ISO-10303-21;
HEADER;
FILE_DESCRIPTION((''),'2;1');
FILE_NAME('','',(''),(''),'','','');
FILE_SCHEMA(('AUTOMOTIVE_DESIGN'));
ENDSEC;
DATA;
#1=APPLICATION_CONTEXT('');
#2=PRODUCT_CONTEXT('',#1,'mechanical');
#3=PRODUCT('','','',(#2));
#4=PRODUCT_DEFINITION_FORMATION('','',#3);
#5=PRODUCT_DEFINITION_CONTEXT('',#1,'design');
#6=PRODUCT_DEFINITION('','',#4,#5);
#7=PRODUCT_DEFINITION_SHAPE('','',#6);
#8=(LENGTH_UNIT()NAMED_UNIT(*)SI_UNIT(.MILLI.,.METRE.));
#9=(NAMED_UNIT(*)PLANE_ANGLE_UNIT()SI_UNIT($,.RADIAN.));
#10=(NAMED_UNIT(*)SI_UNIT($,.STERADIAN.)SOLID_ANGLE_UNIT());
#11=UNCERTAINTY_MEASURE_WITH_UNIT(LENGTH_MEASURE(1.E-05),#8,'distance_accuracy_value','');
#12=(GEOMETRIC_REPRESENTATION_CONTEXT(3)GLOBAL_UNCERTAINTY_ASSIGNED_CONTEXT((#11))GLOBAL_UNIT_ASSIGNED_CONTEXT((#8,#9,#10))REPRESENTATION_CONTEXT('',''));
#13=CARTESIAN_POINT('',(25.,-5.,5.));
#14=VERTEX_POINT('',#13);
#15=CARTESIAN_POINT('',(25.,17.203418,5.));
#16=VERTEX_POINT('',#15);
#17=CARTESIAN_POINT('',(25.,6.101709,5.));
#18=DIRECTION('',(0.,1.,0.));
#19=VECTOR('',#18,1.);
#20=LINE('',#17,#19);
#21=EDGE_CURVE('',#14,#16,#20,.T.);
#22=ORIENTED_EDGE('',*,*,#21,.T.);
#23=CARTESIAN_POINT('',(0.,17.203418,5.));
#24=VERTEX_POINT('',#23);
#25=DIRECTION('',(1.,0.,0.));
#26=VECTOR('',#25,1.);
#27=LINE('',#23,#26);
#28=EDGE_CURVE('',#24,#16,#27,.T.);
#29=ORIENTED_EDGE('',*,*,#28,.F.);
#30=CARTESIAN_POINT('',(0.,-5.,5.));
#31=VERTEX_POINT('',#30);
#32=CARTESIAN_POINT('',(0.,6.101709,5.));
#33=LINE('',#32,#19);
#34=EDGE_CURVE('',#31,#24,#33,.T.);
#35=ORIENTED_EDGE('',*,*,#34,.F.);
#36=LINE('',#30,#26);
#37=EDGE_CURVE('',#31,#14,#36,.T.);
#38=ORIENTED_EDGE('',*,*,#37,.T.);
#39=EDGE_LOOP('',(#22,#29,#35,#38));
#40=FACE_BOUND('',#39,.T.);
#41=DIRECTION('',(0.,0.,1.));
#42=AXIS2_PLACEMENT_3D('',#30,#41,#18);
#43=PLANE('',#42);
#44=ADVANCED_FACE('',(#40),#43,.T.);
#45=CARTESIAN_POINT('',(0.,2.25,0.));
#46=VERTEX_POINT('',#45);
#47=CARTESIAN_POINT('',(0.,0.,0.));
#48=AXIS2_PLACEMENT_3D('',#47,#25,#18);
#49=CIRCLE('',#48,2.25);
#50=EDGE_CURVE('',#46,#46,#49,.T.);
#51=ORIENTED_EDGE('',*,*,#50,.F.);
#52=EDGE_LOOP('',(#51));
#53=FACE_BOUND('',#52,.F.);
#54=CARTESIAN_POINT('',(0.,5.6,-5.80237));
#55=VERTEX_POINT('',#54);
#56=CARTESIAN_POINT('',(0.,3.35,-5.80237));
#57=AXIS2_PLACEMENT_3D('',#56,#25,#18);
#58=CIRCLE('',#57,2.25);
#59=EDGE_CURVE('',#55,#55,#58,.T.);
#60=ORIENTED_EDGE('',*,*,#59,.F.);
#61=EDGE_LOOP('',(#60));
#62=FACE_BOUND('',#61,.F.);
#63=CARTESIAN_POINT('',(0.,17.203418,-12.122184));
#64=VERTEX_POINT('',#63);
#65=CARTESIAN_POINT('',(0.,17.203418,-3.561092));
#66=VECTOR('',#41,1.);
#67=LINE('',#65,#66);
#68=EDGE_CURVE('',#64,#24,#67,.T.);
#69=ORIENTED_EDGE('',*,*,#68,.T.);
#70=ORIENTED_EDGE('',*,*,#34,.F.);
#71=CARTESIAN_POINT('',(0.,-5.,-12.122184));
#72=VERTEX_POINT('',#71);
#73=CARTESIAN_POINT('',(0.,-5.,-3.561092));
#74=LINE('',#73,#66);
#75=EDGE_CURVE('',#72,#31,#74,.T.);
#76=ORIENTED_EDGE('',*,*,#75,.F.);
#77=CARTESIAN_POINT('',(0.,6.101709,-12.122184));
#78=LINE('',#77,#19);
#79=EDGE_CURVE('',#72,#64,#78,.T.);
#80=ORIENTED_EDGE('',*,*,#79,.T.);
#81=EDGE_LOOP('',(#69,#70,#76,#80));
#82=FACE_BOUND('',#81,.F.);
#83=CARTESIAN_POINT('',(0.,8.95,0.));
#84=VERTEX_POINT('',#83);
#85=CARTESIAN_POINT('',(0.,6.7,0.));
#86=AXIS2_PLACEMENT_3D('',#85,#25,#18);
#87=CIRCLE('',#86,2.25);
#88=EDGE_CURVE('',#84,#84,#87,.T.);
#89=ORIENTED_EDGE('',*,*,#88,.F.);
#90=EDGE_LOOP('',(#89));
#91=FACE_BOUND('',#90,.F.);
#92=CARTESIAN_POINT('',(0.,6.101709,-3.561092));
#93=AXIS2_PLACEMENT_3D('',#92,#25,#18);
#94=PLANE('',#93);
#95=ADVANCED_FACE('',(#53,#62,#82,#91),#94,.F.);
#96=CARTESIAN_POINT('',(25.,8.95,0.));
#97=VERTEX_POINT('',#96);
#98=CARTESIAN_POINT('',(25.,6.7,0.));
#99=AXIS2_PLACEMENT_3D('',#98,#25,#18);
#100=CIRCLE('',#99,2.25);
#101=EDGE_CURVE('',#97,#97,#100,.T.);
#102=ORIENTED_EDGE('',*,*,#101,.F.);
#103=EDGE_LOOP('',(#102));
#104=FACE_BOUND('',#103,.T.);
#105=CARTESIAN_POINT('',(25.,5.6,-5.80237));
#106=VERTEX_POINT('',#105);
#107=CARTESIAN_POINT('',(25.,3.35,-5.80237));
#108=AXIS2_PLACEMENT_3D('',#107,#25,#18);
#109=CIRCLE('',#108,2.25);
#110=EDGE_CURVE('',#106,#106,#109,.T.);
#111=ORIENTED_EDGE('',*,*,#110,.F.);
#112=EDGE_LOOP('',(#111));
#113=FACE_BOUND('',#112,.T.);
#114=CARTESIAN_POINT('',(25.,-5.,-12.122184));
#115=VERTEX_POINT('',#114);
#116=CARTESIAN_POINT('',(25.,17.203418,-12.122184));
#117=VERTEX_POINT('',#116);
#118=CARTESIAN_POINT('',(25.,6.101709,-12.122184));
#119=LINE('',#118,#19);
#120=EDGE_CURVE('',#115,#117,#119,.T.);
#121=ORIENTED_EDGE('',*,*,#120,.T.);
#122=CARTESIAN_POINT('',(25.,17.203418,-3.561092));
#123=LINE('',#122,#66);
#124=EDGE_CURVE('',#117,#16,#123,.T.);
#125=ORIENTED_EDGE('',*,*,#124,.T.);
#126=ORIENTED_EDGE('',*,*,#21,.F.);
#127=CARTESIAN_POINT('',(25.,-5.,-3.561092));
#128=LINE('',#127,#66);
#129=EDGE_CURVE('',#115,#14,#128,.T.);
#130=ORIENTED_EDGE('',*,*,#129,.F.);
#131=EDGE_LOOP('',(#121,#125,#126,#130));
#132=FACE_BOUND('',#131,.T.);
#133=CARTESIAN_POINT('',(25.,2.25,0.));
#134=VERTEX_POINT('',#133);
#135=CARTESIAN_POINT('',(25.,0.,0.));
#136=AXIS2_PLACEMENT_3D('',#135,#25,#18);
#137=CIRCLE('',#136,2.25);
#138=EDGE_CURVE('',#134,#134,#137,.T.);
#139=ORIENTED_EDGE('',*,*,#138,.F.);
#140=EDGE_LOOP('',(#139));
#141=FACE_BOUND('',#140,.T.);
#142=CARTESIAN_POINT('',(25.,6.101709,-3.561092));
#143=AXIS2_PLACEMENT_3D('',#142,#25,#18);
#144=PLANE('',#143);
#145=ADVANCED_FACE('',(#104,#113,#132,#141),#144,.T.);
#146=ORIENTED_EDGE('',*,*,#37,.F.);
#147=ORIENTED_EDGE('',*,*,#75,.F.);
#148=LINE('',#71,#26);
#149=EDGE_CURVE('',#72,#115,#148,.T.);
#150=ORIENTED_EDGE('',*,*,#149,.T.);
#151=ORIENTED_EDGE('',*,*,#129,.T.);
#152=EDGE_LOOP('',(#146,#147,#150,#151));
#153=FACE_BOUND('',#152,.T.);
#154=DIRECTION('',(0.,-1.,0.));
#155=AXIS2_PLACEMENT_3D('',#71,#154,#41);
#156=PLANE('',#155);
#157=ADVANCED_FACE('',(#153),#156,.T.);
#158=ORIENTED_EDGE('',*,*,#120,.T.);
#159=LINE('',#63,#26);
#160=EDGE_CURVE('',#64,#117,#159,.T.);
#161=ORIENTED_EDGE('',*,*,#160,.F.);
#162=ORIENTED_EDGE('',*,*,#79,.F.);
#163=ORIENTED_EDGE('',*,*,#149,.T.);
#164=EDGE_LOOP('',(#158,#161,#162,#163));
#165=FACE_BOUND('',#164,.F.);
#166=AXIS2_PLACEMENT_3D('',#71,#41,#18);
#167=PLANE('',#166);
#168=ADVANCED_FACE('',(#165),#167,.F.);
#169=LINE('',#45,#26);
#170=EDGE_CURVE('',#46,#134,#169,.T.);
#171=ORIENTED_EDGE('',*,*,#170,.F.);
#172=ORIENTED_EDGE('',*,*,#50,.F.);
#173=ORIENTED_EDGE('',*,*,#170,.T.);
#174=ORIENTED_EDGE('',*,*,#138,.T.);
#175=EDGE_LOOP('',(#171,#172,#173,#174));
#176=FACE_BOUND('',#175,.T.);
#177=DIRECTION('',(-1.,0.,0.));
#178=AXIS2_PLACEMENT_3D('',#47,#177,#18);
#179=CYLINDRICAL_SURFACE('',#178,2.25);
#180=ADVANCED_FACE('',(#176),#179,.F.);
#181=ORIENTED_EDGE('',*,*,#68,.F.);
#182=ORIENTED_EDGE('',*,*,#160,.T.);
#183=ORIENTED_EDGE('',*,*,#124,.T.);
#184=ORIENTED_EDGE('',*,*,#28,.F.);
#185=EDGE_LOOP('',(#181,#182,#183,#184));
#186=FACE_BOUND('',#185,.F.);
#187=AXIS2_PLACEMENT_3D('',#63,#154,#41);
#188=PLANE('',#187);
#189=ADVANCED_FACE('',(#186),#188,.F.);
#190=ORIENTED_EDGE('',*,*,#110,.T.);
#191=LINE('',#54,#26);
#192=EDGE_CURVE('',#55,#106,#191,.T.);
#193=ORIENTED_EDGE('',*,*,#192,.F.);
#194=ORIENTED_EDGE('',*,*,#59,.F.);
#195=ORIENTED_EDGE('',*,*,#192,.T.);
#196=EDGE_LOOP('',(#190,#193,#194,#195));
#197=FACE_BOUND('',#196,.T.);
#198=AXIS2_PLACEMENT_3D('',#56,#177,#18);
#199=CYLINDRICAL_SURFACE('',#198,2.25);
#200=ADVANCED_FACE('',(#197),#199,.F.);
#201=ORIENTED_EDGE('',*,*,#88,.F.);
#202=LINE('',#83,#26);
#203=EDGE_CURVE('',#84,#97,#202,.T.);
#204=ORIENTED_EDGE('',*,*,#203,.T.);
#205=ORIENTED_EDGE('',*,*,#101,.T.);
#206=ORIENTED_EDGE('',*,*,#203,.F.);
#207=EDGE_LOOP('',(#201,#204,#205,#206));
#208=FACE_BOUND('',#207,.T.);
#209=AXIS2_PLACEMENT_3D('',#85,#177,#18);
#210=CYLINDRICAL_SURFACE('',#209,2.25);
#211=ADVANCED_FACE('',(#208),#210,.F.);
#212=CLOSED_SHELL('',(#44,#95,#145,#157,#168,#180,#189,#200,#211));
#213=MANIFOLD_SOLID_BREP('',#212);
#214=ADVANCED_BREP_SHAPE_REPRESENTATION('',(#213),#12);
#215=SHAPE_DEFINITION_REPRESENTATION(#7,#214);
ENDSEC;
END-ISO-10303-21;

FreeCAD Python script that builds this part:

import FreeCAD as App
import Part
import Sketcher

V = App.Vector
Q = App.Units.Quantity


def add_polygon(sketch, points):
    """Adds a closed chain of lines whose ends are joined by coincident constraints."""
    first, n = sketch.GeometryCount, len(points)
    for a, b in zip(points, points[1:] + points[:1]):
        sketch.addGeometry(Part.LineSegment(App.Vector(*a, 0), App.Vector(*b, 0)), False)
    for i in range(n):
        sketch.addConstraint(Sketcher.Constraint("Coincident", first + i, 2, first + (i + 1) % n, 1))

doc = App.newDocument("Part")
params = doc.addObject("Spreadsheet::Sheet", "Params")
for row, (alias, value) in enumerate([
    ("sketch1_diameter", "4.5 mm"),
    ("pad1_length", "25 mm"),
], start=1):
    params.set(f"A{row}", alias)
    params.set(f"B{row}", "=" + value)
    params.setAlias(f"B{row}", alias)

body = doc.addObject("PartDesign::Body", "Body")

sketch1 = doc.addObject("Sketcher::SketchObject", "Sketch")
body.addObject(sketch1)
sketch1.AttachmentSupport = (doc.YZ_Plane, [""])
sketch1.MapMode = "FlatFace"
add_polygon(sketch1, [(-5, 5), (-5, -12.122184), (17.203418, -12.122184), (17.203418, 5)])
sketch1.addGeometry(Part.Circle(V(3.35, -5.80237, 0), V(0, 0, 1), 2.25), False)
sketch1.addGeometry(Part.Circle(V(0, 0, 0), V(0, 0, 1), 2.25), False)
sketch1.addGeometry(Part.Circle(V(6.7, 0, 0), V(0, 0, 1), 2.25), False)
sketch1.addConstraint(Sketcher.Constraint("Vertical", 0))
sketch1.addConstraint(Sketcher.Constraint("Horizontal", 1))
sketch1.addConstraint(Sketcher.Constraint("Vertical", 2))
sketch1.addConstraint(Sketcher.Constraint("Horizontal", 3))
sketch1.addConstraint(Sketcher.Constraint("Coincident", 5, 3, -1, 1))
sketch1.addConstraint(Sketcher.Constraint("Equal", 4, 5))
sketch1.addConstraint(Sketcher.Constraint("Equal", 5, 6))
sketch1.addConstraint(Sketcher.Constraint("PointOnObject", 6, 3, -1))
sketch1.addConstraint(Sketcher.Constraint("Diameter", 4, Q("4.5 mm")))
sketch1.addConstraint(Sketcher.Constraint("DistanceX", 0, 2, -1, 1, Q("5 mm")))
sketch1.addConstraint(Sketcher.Constraint("DistanceY", -1, 1, 2, 2, Q("5 mm")))
sketch1.addConstraint(Sketcher.Constraint("DistanceX", -1, 1, 6, 3, Q("6.7 mm")))
sketch1.addConstraint(Sketcher.Constraint("DistanceX", -1, 1, 4, 3, Q("3.35 mm")))
sketch1.addConstraint(Sketcher.Constraint("DistanceX", 1, 1, 1, 2, Q("22.203418 mm")))
sketch1.addConstraint(Sketcher.Constraint("DistanceY", 0, 2, 0, 1, Q("17.122185 mm")))
sketch1.addConstraint(Sketcher.Constraint("DistanceY", 4, 3, -1, 1, Q("5.80237 mm")))
sketch1.setExpression("Constraints[12]", "Params.sketch1_diameter")
pad1 = doc.addObject("PartDesign::Pad", "Pad")
body.addObject(pad1)
pad1.Profile = sketch1
pad1.setExpression("Length", "Params.pad1_length")

doc.recompute()
